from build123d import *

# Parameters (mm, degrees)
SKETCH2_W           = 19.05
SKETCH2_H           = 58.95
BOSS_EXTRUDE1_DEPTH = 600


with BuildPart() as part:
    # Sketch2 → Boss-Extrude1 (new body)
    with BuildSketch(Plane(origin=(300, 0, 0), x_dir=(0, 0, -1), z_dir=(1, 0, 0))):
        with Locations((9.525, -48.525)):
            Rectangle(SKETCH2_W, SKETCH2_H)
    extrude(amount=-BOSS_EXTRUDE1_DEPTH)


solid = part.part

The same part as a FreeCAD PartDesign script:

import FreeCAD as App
import Part
import Sketcher

V = App.Vector
Q = App.Units.Quantity


def add_polygon(sketch, points):
    """Adds a closed chain of lines whose ends are joined by coincident constraints."""
    first, n = sketch.GeometryCount, len(points)
    for a, b in zip(points, points[1:] + points[:1]):
        sketch.addGeometry(Part.LineSegment(App.Vector(*a, 0), App.Vector(*b, 0)), False)
    for i in range(n):
        sketch.addConstraint(Sketcher.Constraint("Coincident", first + i, 2, first + (i + 1) % n, 1))

doc = App.newDocument("Part")
body = doc.addObject("PartDesign::Body", "Body")

sketch1 = body.newObject("Sketcher::SketchObject", "Sketch")
sketch1.AttachmentSupport = (doc.getObject("YZ_Plane"), [""])
sketch1.MapMode = "FlatFace"
sketch1.AttachmentOffset = App.Placement(V(0, 0, 300), App.Rotation())
add_polygon(sketch1, [(-19.05, 0), (-78, 0), (-78, -19.05), (-19.05, -19.05)])
sketch1.addConstraint(Sketcher.Constraint("Horizontal", 0))
sketch1.addConstraint(Sketcher.Constraint("Vertical", 1))
sketch1.addConstraint(Sketcher.Constraint("Horizontal", 2))
sketch1.addConstraint(Sketcher.Constraint("Vertical", 3))
sketch1.addConstraint(Sketcher.Constraint("PointOnObject", 0, 2, -1))
sketch1.addConstraint(Sketcher.Constraint("DistanceX", 0, 2, -1, 1, Q("78 mm")))
sketch1.addConstraint(Sketcher.Constraint("DistanceX", 0, 2, 0, 1, Q("58.95 mm")))
sketch1.addConstraint(Sketcher.Constraint("DistanceY", 1, 2, 1, 1, Q("19.05 mm")))
pad1 = body.newObject("PartDesign::Pad", "Pad")
pad1.Profile = sketch1
pad1.Length = 600
pad1.Reversed = True

doc.recompute()
